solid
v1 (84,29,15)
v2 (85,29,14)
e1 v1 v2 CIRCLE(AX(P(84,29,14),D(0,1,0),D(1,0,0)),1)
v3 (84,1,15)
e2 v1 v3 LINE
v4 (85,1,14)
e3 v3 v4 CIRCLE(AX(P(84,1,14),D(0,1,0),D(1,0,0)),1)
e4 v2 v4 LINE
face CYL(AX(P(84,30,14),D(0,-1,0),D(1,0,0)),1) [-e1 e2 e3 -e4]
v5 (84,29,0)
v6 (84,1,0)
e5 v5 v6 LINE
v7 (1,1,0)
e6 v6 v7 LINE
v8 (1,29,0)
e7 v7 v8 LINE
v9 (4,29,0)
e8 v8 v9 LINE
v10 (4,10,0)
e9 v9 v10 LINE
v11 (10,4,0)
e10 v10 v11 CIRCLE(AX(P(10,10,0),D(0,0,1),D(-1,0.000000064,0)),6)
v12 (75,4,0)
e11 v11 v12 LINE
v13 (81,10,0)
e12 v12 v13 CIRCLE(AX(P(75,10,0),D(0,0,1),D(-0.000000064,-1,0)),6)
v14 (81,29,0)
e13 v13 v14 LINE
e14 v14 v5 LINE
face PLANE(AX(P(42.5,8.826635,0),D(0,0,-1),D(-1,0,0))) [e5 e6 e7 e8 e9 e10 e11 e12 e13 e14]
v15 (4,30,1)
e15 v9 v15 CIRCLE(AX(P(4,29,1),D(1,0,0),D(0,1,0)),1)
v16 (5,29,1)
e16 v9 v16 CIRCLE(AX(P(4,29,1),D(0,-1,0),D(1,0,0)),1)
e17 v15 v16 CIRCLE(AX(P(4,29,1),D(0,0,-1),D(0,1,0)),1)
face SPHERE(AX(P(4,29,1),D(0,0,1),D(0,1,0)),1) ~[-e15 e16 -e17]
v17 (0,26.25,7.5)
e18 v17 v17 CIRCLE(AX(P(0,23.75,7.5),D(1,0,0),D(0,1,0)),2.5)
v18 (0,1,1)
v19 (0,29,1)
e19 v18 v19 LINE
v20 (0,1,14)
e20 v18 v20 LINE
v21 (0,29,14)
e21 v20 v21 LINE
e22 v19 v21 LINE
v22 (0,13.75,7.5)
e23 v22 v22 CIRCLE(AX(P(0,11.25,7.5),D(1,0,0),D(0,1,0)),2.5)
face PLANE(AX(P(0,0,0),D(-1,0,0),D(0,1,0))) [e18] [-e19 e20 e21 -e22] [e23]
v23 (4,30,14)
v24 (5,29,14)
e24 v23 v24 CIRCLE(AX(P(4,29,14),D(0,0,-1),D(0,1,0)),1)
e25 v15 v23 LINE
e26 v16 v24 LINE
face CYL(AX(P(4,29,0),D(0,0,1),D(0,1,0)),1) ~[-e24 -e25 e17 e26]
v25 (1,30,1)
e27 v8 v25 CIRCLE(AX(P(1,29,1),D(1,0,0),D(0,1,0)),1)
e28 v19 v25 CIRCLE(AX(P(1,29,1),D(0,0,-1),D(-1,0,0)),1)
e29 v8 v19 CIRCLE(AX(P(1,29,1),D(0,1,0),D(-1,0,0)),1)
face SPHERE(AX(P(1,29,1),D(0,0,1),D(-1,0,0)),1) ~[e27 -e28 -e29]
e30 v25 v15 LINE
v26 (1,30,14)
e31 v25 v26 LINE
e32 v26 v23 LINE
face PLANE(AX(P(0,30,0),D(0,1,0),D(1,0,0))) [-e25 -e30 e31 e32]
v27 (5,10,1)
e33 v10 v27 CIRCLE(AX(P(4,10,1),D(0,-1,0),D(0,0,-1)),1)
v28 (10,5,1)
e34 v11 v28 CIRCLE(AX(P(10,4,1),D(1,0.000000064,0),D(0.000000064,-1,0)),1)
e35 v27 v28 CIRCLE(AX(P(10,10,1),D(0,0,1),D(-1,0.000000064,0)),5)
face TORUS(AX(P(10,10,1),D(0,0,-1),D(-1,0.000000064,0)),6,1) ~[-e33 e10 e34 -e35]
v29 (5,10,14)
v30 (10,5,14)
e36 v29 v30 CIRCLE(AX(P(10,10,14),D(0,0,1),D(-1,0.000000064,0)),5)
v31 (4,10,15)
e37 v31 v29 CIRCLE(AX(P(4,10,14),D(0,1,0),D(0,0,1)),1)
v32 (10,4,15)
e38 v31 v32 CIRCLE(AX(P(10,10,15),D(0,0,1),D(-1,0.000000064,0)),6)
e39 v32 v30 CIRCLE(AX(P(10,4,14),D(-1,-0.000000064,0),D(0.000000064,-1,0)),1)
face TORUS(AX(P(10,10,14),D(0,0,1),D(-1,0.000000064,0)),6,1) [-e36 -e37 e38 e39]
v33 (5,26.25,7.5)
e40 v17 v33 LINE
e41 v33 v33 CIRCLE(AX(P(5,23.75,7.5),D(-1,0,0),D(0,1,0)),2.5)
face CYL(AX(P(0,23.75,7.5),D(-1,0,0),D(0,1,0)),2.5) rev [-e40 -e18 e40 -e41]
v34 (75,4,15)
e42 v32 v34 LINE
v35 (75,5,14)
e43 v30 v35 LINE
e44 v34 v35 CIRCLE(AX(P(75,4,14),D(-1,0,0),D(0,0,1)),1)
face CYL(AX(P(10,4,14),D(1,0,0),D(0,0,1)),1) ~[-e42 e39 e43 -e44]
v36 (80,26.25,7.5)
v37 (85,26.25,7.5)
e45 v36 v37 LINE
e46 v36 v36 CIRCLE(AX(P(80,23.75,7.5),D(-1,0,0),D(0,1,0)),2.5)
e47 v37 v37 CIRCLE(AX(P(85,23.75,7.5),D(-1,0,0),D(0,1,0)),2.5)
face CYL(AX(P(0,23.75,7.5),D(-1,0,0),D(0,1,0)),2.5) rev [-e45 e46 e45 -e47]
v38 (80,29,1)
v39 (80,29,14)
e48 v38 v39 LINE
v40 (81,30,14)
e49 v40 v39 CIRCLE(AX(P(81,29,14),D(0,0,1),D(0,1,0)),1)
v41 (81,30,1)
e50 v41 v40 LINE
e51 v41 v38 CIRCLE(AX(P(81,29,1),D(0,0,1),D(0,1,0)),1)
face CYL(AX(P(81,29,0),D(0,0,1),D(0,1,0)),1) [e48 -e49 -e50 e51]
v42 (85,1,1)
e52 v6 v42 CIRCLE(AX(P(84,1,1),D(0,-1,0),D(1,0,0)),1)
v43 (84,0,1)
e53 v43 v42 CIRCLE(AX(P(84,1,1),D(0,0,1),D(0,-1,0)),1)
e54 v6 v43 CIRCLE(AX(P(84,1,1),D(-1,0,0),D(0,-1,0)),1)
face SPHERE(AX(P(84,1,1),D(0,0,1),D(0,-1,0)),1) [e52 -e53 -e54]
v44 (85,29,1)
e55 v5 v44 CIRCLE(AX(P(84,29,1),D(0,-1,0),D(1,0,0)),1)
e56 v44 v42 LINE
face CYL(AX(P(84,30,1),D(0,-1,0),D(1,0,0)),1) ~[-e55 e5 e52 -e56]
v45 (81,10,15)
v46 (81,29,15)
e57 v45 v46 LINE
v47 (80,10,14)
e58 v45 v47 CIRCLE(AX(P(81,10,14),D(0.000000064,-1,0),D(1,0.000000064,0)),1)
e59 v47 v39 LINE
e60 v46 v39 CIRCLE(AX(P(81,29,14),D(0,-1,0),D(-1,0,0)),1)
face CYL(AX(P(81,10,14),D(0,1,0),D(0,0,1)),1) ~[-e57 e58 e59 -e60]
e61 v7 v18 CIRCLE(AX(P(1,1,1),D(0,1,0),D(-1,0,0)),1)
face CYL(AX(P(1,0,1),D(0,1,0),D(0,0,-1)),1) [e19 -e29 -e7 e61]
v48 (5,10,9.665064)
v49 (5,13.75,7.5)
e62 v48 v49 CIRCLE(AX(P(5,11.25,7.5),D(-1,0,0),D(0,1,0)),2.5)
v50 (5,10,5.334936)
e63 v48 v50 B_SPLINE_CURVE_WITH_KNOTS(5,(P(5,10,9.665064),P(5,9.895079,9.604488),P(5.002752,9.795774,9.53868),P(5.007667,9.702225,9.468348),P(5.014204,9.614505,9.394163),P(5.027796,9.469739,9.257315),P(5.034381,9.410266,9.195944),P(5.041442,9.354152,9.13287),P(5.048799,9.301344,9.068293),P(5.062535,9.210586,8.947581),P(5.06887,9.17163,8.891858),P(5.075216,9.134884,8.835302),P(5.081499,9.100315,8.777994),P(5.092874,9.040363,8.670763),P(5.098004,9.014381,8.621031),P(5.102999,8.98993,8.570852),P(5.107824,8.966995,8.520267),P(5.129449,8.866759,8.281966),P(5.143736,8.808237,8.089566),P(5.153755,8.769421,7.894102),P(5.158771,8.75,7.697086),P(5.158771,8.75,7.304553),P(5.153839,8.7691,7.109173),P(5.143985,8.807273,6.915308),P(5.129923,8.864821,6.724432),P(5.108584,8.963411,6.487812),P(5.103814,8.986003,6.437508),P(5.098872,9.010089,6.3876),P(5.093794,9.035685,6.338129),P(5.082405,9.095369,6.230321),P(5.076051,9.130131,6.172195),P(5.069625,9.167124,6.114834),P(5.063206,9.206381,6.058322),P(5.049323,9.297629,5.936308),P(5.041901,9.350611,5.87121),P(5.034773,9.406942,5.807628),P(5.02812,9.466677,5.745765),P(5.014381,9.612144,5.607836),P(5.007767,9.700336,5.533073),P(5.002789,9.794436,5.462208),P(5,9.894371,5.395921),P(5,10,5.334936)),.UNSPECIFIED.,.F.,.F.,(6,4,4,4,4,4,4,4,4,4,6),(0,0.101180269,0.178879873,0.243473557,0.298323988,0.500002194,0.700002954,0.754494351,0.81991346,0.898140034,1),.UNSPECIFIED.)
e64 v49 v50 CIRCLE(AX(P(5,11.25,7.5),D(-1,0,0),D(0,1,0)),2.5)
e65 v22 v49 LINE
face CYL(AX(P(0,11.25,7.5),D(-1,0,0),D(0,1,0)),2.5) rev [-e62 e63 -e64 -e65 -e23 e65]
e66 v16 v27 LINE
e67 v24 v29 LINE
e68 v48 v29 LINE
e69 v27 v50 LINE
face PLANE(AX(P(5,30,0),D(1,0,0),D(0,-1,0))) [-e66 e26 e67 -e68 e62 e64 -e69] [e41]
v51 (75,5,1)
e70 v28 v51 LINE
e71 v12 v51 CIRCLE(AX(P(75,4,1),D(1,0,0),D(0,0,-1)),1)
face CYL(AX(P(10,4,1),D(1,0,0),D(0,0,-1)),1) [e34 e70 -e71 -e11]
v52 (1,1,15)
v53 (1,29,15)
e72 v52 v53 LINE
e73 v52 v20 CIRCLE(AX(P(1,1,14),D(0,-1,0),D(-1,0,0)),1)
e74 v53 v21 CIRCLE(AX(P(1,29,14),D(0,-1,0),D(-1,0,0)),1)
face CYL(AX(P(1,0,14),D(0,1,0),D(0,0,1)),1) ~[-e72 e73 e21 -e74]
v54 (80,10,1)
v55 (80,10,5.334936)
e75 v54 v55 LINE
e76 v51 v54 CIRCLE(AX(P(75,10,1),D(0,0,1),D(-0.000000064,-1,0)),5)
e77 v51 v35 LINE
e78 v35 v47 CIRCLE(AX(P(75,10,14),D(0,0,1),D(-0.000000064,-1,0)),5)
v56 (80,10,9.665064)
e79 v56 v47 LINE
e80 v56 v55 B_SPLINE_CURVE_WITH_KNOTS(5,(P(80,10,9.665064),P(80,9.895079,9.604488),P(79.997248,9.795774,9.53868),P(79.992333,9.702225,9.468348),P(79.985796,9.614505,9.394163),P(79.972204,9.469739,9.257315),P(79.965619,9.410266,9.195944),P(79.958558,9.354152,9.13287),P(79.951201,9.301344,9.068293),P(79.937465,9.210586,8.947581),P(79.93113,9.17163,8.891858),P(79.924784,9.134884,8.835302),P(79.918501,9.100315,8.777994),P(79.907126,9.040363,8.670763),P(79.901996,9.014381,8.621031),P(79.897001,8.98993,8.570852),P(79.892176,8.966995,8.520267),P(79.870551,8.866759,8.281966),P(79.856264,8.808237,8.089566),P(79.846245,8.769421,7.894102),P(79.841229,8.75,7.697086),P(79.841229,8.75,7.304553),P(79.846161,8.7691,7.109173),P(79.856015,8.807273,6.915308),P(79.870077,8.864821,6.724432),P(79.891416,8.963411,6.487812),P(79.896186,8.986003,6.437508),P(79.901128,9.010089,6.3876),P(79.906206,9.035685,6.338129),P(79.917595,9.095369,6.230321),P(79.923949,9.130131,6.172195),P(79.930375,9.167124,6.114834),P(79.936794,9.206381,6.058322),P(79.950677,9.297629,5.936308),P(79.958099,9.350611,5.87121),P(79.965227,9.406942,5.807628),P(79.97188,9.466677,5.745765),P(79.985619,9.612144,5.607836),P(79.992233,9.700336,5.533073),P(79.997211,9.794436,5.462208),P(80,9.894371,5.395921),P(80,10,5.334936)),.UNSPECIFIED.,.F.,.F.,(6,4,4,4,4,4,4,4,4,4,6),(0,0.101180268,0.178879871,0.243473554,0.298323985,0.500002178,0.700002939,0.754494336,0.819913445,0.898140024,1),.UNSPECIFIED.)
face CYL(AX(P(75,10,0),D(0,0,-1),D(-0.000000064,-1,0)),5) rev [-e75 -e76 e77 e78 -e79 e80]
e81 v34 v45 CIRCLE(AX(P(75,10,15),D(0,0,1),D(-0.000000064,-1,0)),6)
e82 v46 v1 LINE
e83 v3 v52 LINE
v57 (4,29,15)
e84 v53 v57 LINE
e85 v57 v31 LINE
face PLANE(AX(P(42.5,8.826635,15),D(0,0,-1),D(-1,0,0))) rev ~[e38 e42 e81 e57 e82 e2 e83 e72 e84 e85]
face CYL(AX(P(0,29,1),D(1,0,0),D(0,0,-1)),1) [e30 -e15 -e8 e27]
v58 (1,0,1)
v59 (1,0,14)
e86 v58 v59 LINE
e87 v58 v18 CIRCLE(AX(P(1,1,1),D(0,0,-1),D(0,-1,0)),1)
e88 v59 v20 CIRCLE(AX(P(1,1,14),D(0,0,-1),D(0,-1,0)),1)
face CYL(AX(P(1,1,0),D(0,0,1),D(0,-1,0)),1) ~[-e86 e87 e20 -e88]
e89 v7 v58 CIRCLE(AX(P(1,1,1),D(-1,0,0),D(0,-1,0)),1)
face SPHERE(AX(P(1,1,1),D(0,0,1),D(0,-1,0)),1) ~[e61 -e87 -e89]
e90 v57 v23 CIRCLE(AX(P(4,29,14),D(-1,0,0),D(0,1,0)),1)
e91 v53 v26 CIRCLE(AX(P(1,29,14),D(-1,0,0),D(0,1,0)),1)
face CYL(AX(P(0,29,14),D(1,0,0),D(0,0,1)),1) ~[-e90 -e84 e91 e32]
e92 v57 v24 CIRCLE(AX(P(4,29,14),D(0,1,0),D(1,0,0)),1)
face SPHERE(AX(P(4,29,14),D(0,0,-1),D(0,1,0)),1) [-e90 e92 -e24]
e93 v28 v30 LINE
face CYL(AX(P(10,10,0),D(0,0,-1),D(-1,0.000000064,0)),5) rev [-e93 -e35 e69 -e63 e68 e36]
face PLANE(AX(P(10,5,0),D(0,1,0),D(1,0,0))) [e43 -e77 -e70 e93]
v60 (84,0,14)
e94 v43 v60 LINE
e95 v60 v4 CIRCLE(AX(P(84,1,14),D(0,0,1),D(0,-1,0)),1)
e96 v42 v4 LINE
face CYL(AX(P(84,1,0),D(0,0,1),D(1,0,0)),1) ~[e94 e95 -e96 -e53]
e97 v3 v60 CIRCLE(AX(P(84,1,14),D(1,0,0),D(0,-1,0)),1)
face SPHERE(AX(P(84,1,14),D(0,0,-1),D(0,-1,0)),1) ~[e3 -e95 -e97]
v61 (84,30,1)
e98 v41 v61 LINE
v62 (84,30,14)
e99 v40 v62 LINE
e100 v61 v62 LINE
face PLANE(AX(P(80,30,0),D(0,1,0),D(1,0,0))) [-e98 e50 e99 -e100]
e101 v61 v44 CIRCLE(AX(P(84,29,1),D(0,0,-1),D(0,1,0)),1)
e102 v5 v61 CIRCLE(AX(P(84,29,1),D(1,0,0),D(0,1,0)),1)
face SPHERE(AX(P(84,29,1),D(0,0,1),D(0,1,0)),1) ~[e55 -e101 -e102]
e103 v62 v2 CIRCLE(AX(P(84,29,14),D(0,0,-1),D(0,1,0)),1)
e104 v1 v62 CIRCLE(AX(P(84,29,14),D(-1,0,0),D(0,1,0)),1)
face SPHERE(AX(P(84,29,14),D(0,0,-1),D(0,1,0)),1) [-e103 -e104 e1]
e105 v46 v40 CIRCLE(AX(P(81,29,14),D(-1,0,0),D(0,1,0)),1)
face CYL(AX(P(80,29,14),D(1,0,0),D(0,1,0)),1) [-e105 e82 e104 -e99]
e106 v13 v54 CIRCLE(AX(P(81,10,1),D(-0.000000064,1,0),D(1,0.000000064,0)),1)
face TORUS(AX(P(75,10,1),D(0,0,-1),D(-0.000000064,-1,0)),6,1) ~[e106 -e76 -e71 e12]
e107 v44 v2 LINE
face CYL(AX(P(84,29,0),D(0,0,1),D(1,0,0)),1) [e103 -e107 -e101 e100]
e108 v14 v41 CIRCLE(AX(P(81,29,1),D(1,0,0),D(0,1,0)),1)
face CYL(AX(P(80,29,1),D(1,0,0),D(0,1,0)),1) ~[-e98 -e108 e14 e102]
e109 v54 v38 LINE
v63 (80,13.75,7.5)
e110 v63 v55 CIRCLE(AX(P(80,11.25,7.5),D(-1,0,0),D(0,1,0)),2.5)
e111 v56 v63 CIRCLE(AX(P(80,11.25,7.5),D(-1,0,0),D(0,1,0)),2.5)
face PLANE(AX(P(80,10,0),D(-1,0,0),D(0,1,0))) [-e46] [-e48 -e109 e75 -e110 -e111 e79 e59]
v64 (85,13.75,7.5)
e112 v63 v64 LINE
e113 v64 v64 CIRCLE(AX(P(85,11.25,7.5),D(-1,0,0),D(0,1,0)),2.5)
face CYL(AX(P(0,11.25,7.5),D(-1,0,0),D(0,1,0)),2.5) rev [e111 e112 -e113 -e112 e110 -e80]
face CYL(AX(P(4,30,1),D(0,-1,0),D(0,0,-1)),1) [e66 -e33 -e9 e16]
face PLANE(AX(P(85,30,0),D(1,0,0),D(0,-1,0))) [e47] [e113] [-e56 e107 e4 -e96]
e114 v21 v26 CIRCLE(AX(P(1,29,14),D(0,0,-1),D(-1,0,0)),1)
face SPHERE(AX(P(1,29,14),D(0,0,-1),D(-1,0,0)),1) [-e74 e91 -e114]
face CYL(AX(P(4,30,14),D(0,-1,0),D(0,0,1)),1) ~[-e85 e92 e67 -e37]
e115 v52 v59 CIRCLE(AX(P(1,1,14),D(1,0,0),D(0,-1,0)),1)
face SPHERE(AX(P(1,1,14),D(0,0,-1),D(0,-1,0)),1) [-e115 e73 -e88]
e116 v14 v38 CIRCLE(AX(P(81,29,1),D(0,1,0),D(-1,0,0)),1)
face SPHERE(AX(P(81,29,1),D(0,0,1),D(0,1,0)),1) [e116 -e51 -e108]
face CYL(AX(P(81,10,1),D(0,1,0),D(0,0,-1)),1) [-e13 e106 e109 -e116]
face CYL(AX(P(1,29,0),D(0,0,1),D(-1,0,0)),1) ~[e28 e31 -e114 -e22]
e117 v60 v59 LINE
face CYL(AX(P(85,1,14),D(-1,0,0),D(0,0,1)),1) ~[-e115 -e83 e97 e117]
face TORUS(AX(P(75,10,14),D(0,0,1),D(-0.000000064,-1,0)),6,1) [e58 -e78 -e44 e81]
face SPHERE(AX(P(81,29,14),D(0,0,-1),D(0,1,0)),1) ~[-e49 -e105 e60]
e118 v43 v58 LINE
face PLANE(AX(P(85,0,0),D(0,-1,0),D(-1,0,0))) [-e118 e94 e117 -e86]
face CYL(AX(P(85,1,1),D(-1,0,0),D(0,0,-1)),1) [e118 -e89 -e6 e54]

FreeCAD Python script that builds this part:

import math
import FreeCAD as App
import Part
import Sketcher
from FreeCAD import Vector


def edges_at(feature, points):
    """Names of the edges that pass closest to the given points."""
    edges = feature.Shape.Edges
    near = lambda p: min(range(len(edges)), key=lambda i: edges[i].distToShape(Part.Vertex(*p))[0])
    return sorted({f"Edge{near(p) + 1}" for p in points})

doc = App.newDocument("Part")
params = doc.addObject("Spreadsheet::Sheet", "Params")
for row, (alias, value) in enumerate([
    ("sketch1_radius", "5 mm"),
    ("sketch1_width", "5 mm"),
    ("sketch1_width2", "65 mm"),
    ("sketch1_height", "30 mm"),
    ("sketch1_height2", "20 mm"),
    ("pad1_length", "15 mm"),
    ("sketch2_diameter", "5 mm"),
    ("fillet_radius", "1 mm"),
], start=1):
    params.set(f"A{row}", alias)
    params.set(f"B{row}", "=" + value)
    params.setAlias(f"B{row}", alias)

body = doc.addObject("PartDesign::Body", "Body")

sketch1 = body.newObject("Sketcher::SketchObject", "Sketch")
sketch1.AttachmentSupport = (doc.getObject("XY_Plane"), [""])
sketch1.MapMode = "FlatFace"
sketch1.addGeometry(Part.LineSegment(Vector(85, 0, 0), Vector(85, 30, 0)), False)
sketch1.addGeometry(Part.LineSegment(Vector(85, 30, 0), Vector(80, 30, 0)), False)
sketch1.addGeometry(Part.LineSegment(Vector(80, 30, 0), Vector(80, 10, 0)), False)
sketch1.addGeometry(Part.ArcOfCircle(Part.Circle(Vector(75, 10, 0), Vector(0, 0, 1), 5), math.radians(-90.000004), math.radians(0.000004)), False)
sketch1.addGeometry(Part.LineSegment(Vector(75, 5, 0), Vector(10, 5, 0)), False)
sketch1.addGeometry(Part.ArcOfCircle(Part.Circle(Vector(10, 10, 0), Vector(0, 0, 1), 5), math.radians(179.999996), math.radians(270.000004)), False)
sketch1.addGeometry(Part.LineSegment(Vector(5, 10, 0), Vector(5, 30, 0)), False)
sketch1.addGeometry(Part.LineSegment(Vector(5, 30, 0), Vector(0, 30, 0)), False)
sketch1.addGeometry(Part.LineSegment(Vector(0, 30, 0), Vector(0, 0, 0)), False)
sketch1.addGeometry(Part.LineSegment(Vector(0, 0, 0), Vector(85, 0, 0)), False)
sketch1.addConstraint(Sketcher.Constraint("Coincident", 0, 2, 1, 1))
sketch1.addConstraint(Sketcher.Constraint("Coincident", 1, 2, 2, 1))
sketch1.addConstraint(Sketcher.Constraint("Tangent", 2, 2, 3, 2))
sketch1.addConstraint(Sketcher.Constraint("Tangent", 3, 1, 4, 1))
sketch1.addConstraint(Sketcher.Constraint("Tangent", 4, 2, 5, 2))
sketch1.addConstraint(Sketcher.Constraint("Tangent", 5, 1, 6, 1))
sketch1.addConstraint(Sketcher.Constraint("Coincident", 6, 2, 7, 1))
sketch1.addConstraint(Sketcher.Constraint("Coincident", 7, 2, 8, 1))
sketch1.addConstraint(Sketcher.Constraint("Coincident", 8, 2, 9, 1))
sketch1.addConstraint(Sketcher.Constraint("Coincident", 9, 2, 0, 1))
sketch1.addConstraint(Sketcher.Constraint("Vertical", 0))
sketch1.addConstraint(Sketcher.Constraint("Horizontal", 1))
sketch1.addConstraint(Sketcher.Constraint("Vertical", 2))
sketch1.addConstraint(Sketcher.Constraint("Horizontal", 4))
sketch1.addConstraint(Sketcher.Constraint("Vertical", 6))
sketch1.addConstraint(Sketcher.Constraint("Horizontal", 7))
sketch1.addConstraint(Sketcher.Constraint("Vertical", 8))
sketch1.addConstraint(Sketcher.Constraint("Horizontal", 9))
sketch1.addConstraint(Sketcher.Constraint("Coincident", 8, 2, -1, 1))
sketch1.addConstraint(Sketcher.Constraint("Equal", 3, 5))
sketch1.addConstraint(Sketcher.Constraint("Horizontal", 1, 2, 6, 2))
sketch1.addConstraint(Sketcher.Constraint("Equal", 1, 7))
sketch1.addConstraint(Sketcher.Constraint("Radius", 3, 5.0))
sketch1.addConstraint(Sketcher.Constraint("DistanceX", 1, 2, 1, 1, 5.0))
sketch1.addConstraint(Sketcher.Constraint("DistanceX", 4, 2, 4, 1, 65.0))
sketch1.addConstraint(Sketcher.Constraint("DistanceY", 0, 1, 0, 2, 30.0))
sketch1.addConstraint(Sketcher.Constraint("DistanceY", 2, 2, 2, 1, 20.0))
sketch1.setExpression("Constraints[22]", "Params.sketch1_radius")
sketch1.setExpression("Constraints[23]", "Params.sketch1_width")
sketch1.setExpression("Constraints[24]", "Params.sketch1_width2")
sketch1.setExpression("Constraints[25]", "Params.sketch1_height")
sketch1.setExpression("Constraints[26]", "Params.sketch1_height2")
pad1 = body.newObject("PartDesign::Pad", "Pad")
pad1.Profile = sketch1
pad1.setExpression("Length", "Params.pad1_length")

sketch2 = body.newObject("Sketcher::SketchObject", "Sketch001")
sketch2.AttachmentSupport = (doc.getObject("YZ_Plane"), [""])
sketch2.MapMode = "FlatFace"
sketch2.addGeometry(Part.Circle(Vector(11.25, 7.5, 0), Vector(0, 0, 1), 2.5), False)
sketch2.addGeometry(Part.Circle(Vector(23.75, 7.5, 0), Vector(0, 0, 1), 2.5), False)
sketch2.addConstraint(Sketcher.Constraint("Equal", 0, 1))
sketch2.addConstraint(Sketcher.Constraint("Horizontal", 0, 3, 1, 3))
sketch2.addConstraint(Sketcher.Constraint("Diameter", 0, 5.0))
sketch2.addConstraint(Sketcher.Constraint("DistanceY", -1, 1, 0, 3, 7.5))
sketch2.addConstraint(Sketcher.Constraint("DistanceX", 0, 3, 1, 3, 12.5))
sketch2.addConstraint(Sketcher.Constraint("DistanceX", -1, 1, 0, 3, 11.25))
sketch2.setExpression("Constraints[2]", "Params.sketch2_diameter")
pocket1 = body.newObject("PartDesign::Pocket", "Pocket")
pocket1.Profile = sketch2
pocket1.Type = "ThroughAll"
pocket1.Midplane = True
doc.recompute()

fillet = body.newObject("PartDesign::Fillet", "Fillet")
fillet.Base = (pocket1, edges_at(pocket1, [
    (85, 30, 7.5),
    (80, 30, 7.5),
    (82.5, 30, 0),
    (82.5, 30, 15),
    (85, 0, 7.5),
    (5, 30, 7.5),
    (0, 30, 7.5),
    (0, 0, 7.5),
    (42.5, 0, 15),
    (42.5, 0, 0),
    (85, 15, 15),
    (0, 15, 15),
    (2.5, 30, 15),
    (5, 20, 15),
    (6.464, 6.464, 15),
    (42.5, 5, 15),
    (78.536, 6.464, 15),
    (80, 20, 15),
    (85, 15, 0),
    (0, 15, 0),
    (2.5, 30, 0),
    (5, 20, 0),
    (6.464, 6.464, 0),
    (42.5, 5, 0),
    (78.536, 6.464, 0),
    (80, 20, 0),
]))
fillet.setExpression("Radius", "Params.fillet_radius")

doc.recompute()
